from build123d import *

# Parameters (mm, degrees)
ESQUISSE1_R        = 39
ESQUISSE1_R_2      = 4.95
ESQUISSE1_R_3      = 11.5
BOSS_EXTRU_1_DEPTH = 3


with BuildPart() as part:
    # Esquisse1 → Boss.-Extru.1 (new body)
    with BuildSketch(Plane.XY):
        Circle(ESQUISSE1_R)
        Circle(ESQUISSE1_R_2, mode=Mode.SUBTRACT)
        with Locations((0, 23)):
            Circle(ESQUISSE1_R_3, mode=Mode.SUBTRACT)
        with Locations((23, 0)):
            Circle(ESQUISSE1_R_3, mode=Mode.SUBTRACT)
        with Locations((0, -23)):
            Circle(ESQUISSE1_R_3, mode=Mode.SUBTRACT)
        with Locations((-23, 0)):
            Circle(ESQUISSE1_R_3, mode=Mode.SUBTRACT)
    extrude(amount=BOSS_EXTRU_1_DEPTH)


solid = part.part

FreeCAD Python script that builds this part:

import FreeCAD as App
import Part
import Sketcher

V = App.Vector
Q = App.Units.Quantity

doc = App.newDocument("Part")
body = doc.addObject("PartDesign::Body", "Body")

# Sketch on XY plane
sketch1 = doc.addObject("Sketcher::SketchObject", "Sketch")
body.addObject(sketch1)
sketch1.AttachmentSupport = (doc.XY_Plane, [""])
sketch1.MapMode = "FlatFace"
sketch1.addGeometry(Part.Circle(V(0, 0, 0), V(0, 0, 1), 39), False)
sketch1.addGeometry(Part.Circle(V(0, -23, 0), V(0, 0, 1), 11.5), False)
sketch1.addGeometry(Part.Circle(V(-23, 0, 0), V(0, 0, 1), 11.5), False)
sketch1.addGeometry(Part.Circle(V(0, 0, 0), V(0, 0, 1), 5), False)
sketch1.addGeometry(Part.Circle(V(23, 0, 0), V(0, 0, 1), 11.5), False)
sketch1.addGeometry(Part.Circle(V(0, 23, 0), V(0, 0, 1), 11.5), False)
sketch1.addConstraint(Sketcher.Constraint("Coincident", 0, 3, -1, 1))
sketch1.addConstraint(Sketcher.Constraint("Coincident", 3, 3, -1, 1))
sketch1.addConstraint(Sketcher.Constraint("Equal", 1, 2))
sketch1.addConstraint(Sketcher.Constraint("Equal", 2, 4))
sketch1.addConstraint(Sketcher.Constraint("Equal", 4, 5))
sketch1.addConstraint(Sketcher.Constraint("Symmetric", 2, 3, 4, 3, -1, 1))
sketch1.addConstraint(Sketcher.Constraint("Symmetric", 1, 3, 5, 3, -1, 1))
sketch1.addConstraint(Sketcher.Constraint("PointOnObject", 1, 3, -2))
sketch1.addConstraint(Sketcher.Constraint("PointOnObject", 2, 3, -1))
sketch1.addConstraint(Sketcher.Constraint("Diameter", 0, Q("78 mm")))
sketch1.addConstraint(Sketcher.Constraint("Diameter", 1, Q("23 mm")))
sketch1.addConstraint(Sketcher.Constraint("Diameter", 3, Q("9.9 mm")))
sketch1.addConstraint(Sketcher.Constraint("DistanceY", 1, 3, -1, 1, Q("23 mm")))
sketch1.addConstraint(Sketcher.Constraint("DistanceX", 2, 3, -1, 1, Q("23 mm")))
pad1 = doc.addObject("PartDesign::Pad", "Pad")
body.addObject(pad1)
pad1.Profile = sketch1
pad1.Length = 3

doc.recompute()
